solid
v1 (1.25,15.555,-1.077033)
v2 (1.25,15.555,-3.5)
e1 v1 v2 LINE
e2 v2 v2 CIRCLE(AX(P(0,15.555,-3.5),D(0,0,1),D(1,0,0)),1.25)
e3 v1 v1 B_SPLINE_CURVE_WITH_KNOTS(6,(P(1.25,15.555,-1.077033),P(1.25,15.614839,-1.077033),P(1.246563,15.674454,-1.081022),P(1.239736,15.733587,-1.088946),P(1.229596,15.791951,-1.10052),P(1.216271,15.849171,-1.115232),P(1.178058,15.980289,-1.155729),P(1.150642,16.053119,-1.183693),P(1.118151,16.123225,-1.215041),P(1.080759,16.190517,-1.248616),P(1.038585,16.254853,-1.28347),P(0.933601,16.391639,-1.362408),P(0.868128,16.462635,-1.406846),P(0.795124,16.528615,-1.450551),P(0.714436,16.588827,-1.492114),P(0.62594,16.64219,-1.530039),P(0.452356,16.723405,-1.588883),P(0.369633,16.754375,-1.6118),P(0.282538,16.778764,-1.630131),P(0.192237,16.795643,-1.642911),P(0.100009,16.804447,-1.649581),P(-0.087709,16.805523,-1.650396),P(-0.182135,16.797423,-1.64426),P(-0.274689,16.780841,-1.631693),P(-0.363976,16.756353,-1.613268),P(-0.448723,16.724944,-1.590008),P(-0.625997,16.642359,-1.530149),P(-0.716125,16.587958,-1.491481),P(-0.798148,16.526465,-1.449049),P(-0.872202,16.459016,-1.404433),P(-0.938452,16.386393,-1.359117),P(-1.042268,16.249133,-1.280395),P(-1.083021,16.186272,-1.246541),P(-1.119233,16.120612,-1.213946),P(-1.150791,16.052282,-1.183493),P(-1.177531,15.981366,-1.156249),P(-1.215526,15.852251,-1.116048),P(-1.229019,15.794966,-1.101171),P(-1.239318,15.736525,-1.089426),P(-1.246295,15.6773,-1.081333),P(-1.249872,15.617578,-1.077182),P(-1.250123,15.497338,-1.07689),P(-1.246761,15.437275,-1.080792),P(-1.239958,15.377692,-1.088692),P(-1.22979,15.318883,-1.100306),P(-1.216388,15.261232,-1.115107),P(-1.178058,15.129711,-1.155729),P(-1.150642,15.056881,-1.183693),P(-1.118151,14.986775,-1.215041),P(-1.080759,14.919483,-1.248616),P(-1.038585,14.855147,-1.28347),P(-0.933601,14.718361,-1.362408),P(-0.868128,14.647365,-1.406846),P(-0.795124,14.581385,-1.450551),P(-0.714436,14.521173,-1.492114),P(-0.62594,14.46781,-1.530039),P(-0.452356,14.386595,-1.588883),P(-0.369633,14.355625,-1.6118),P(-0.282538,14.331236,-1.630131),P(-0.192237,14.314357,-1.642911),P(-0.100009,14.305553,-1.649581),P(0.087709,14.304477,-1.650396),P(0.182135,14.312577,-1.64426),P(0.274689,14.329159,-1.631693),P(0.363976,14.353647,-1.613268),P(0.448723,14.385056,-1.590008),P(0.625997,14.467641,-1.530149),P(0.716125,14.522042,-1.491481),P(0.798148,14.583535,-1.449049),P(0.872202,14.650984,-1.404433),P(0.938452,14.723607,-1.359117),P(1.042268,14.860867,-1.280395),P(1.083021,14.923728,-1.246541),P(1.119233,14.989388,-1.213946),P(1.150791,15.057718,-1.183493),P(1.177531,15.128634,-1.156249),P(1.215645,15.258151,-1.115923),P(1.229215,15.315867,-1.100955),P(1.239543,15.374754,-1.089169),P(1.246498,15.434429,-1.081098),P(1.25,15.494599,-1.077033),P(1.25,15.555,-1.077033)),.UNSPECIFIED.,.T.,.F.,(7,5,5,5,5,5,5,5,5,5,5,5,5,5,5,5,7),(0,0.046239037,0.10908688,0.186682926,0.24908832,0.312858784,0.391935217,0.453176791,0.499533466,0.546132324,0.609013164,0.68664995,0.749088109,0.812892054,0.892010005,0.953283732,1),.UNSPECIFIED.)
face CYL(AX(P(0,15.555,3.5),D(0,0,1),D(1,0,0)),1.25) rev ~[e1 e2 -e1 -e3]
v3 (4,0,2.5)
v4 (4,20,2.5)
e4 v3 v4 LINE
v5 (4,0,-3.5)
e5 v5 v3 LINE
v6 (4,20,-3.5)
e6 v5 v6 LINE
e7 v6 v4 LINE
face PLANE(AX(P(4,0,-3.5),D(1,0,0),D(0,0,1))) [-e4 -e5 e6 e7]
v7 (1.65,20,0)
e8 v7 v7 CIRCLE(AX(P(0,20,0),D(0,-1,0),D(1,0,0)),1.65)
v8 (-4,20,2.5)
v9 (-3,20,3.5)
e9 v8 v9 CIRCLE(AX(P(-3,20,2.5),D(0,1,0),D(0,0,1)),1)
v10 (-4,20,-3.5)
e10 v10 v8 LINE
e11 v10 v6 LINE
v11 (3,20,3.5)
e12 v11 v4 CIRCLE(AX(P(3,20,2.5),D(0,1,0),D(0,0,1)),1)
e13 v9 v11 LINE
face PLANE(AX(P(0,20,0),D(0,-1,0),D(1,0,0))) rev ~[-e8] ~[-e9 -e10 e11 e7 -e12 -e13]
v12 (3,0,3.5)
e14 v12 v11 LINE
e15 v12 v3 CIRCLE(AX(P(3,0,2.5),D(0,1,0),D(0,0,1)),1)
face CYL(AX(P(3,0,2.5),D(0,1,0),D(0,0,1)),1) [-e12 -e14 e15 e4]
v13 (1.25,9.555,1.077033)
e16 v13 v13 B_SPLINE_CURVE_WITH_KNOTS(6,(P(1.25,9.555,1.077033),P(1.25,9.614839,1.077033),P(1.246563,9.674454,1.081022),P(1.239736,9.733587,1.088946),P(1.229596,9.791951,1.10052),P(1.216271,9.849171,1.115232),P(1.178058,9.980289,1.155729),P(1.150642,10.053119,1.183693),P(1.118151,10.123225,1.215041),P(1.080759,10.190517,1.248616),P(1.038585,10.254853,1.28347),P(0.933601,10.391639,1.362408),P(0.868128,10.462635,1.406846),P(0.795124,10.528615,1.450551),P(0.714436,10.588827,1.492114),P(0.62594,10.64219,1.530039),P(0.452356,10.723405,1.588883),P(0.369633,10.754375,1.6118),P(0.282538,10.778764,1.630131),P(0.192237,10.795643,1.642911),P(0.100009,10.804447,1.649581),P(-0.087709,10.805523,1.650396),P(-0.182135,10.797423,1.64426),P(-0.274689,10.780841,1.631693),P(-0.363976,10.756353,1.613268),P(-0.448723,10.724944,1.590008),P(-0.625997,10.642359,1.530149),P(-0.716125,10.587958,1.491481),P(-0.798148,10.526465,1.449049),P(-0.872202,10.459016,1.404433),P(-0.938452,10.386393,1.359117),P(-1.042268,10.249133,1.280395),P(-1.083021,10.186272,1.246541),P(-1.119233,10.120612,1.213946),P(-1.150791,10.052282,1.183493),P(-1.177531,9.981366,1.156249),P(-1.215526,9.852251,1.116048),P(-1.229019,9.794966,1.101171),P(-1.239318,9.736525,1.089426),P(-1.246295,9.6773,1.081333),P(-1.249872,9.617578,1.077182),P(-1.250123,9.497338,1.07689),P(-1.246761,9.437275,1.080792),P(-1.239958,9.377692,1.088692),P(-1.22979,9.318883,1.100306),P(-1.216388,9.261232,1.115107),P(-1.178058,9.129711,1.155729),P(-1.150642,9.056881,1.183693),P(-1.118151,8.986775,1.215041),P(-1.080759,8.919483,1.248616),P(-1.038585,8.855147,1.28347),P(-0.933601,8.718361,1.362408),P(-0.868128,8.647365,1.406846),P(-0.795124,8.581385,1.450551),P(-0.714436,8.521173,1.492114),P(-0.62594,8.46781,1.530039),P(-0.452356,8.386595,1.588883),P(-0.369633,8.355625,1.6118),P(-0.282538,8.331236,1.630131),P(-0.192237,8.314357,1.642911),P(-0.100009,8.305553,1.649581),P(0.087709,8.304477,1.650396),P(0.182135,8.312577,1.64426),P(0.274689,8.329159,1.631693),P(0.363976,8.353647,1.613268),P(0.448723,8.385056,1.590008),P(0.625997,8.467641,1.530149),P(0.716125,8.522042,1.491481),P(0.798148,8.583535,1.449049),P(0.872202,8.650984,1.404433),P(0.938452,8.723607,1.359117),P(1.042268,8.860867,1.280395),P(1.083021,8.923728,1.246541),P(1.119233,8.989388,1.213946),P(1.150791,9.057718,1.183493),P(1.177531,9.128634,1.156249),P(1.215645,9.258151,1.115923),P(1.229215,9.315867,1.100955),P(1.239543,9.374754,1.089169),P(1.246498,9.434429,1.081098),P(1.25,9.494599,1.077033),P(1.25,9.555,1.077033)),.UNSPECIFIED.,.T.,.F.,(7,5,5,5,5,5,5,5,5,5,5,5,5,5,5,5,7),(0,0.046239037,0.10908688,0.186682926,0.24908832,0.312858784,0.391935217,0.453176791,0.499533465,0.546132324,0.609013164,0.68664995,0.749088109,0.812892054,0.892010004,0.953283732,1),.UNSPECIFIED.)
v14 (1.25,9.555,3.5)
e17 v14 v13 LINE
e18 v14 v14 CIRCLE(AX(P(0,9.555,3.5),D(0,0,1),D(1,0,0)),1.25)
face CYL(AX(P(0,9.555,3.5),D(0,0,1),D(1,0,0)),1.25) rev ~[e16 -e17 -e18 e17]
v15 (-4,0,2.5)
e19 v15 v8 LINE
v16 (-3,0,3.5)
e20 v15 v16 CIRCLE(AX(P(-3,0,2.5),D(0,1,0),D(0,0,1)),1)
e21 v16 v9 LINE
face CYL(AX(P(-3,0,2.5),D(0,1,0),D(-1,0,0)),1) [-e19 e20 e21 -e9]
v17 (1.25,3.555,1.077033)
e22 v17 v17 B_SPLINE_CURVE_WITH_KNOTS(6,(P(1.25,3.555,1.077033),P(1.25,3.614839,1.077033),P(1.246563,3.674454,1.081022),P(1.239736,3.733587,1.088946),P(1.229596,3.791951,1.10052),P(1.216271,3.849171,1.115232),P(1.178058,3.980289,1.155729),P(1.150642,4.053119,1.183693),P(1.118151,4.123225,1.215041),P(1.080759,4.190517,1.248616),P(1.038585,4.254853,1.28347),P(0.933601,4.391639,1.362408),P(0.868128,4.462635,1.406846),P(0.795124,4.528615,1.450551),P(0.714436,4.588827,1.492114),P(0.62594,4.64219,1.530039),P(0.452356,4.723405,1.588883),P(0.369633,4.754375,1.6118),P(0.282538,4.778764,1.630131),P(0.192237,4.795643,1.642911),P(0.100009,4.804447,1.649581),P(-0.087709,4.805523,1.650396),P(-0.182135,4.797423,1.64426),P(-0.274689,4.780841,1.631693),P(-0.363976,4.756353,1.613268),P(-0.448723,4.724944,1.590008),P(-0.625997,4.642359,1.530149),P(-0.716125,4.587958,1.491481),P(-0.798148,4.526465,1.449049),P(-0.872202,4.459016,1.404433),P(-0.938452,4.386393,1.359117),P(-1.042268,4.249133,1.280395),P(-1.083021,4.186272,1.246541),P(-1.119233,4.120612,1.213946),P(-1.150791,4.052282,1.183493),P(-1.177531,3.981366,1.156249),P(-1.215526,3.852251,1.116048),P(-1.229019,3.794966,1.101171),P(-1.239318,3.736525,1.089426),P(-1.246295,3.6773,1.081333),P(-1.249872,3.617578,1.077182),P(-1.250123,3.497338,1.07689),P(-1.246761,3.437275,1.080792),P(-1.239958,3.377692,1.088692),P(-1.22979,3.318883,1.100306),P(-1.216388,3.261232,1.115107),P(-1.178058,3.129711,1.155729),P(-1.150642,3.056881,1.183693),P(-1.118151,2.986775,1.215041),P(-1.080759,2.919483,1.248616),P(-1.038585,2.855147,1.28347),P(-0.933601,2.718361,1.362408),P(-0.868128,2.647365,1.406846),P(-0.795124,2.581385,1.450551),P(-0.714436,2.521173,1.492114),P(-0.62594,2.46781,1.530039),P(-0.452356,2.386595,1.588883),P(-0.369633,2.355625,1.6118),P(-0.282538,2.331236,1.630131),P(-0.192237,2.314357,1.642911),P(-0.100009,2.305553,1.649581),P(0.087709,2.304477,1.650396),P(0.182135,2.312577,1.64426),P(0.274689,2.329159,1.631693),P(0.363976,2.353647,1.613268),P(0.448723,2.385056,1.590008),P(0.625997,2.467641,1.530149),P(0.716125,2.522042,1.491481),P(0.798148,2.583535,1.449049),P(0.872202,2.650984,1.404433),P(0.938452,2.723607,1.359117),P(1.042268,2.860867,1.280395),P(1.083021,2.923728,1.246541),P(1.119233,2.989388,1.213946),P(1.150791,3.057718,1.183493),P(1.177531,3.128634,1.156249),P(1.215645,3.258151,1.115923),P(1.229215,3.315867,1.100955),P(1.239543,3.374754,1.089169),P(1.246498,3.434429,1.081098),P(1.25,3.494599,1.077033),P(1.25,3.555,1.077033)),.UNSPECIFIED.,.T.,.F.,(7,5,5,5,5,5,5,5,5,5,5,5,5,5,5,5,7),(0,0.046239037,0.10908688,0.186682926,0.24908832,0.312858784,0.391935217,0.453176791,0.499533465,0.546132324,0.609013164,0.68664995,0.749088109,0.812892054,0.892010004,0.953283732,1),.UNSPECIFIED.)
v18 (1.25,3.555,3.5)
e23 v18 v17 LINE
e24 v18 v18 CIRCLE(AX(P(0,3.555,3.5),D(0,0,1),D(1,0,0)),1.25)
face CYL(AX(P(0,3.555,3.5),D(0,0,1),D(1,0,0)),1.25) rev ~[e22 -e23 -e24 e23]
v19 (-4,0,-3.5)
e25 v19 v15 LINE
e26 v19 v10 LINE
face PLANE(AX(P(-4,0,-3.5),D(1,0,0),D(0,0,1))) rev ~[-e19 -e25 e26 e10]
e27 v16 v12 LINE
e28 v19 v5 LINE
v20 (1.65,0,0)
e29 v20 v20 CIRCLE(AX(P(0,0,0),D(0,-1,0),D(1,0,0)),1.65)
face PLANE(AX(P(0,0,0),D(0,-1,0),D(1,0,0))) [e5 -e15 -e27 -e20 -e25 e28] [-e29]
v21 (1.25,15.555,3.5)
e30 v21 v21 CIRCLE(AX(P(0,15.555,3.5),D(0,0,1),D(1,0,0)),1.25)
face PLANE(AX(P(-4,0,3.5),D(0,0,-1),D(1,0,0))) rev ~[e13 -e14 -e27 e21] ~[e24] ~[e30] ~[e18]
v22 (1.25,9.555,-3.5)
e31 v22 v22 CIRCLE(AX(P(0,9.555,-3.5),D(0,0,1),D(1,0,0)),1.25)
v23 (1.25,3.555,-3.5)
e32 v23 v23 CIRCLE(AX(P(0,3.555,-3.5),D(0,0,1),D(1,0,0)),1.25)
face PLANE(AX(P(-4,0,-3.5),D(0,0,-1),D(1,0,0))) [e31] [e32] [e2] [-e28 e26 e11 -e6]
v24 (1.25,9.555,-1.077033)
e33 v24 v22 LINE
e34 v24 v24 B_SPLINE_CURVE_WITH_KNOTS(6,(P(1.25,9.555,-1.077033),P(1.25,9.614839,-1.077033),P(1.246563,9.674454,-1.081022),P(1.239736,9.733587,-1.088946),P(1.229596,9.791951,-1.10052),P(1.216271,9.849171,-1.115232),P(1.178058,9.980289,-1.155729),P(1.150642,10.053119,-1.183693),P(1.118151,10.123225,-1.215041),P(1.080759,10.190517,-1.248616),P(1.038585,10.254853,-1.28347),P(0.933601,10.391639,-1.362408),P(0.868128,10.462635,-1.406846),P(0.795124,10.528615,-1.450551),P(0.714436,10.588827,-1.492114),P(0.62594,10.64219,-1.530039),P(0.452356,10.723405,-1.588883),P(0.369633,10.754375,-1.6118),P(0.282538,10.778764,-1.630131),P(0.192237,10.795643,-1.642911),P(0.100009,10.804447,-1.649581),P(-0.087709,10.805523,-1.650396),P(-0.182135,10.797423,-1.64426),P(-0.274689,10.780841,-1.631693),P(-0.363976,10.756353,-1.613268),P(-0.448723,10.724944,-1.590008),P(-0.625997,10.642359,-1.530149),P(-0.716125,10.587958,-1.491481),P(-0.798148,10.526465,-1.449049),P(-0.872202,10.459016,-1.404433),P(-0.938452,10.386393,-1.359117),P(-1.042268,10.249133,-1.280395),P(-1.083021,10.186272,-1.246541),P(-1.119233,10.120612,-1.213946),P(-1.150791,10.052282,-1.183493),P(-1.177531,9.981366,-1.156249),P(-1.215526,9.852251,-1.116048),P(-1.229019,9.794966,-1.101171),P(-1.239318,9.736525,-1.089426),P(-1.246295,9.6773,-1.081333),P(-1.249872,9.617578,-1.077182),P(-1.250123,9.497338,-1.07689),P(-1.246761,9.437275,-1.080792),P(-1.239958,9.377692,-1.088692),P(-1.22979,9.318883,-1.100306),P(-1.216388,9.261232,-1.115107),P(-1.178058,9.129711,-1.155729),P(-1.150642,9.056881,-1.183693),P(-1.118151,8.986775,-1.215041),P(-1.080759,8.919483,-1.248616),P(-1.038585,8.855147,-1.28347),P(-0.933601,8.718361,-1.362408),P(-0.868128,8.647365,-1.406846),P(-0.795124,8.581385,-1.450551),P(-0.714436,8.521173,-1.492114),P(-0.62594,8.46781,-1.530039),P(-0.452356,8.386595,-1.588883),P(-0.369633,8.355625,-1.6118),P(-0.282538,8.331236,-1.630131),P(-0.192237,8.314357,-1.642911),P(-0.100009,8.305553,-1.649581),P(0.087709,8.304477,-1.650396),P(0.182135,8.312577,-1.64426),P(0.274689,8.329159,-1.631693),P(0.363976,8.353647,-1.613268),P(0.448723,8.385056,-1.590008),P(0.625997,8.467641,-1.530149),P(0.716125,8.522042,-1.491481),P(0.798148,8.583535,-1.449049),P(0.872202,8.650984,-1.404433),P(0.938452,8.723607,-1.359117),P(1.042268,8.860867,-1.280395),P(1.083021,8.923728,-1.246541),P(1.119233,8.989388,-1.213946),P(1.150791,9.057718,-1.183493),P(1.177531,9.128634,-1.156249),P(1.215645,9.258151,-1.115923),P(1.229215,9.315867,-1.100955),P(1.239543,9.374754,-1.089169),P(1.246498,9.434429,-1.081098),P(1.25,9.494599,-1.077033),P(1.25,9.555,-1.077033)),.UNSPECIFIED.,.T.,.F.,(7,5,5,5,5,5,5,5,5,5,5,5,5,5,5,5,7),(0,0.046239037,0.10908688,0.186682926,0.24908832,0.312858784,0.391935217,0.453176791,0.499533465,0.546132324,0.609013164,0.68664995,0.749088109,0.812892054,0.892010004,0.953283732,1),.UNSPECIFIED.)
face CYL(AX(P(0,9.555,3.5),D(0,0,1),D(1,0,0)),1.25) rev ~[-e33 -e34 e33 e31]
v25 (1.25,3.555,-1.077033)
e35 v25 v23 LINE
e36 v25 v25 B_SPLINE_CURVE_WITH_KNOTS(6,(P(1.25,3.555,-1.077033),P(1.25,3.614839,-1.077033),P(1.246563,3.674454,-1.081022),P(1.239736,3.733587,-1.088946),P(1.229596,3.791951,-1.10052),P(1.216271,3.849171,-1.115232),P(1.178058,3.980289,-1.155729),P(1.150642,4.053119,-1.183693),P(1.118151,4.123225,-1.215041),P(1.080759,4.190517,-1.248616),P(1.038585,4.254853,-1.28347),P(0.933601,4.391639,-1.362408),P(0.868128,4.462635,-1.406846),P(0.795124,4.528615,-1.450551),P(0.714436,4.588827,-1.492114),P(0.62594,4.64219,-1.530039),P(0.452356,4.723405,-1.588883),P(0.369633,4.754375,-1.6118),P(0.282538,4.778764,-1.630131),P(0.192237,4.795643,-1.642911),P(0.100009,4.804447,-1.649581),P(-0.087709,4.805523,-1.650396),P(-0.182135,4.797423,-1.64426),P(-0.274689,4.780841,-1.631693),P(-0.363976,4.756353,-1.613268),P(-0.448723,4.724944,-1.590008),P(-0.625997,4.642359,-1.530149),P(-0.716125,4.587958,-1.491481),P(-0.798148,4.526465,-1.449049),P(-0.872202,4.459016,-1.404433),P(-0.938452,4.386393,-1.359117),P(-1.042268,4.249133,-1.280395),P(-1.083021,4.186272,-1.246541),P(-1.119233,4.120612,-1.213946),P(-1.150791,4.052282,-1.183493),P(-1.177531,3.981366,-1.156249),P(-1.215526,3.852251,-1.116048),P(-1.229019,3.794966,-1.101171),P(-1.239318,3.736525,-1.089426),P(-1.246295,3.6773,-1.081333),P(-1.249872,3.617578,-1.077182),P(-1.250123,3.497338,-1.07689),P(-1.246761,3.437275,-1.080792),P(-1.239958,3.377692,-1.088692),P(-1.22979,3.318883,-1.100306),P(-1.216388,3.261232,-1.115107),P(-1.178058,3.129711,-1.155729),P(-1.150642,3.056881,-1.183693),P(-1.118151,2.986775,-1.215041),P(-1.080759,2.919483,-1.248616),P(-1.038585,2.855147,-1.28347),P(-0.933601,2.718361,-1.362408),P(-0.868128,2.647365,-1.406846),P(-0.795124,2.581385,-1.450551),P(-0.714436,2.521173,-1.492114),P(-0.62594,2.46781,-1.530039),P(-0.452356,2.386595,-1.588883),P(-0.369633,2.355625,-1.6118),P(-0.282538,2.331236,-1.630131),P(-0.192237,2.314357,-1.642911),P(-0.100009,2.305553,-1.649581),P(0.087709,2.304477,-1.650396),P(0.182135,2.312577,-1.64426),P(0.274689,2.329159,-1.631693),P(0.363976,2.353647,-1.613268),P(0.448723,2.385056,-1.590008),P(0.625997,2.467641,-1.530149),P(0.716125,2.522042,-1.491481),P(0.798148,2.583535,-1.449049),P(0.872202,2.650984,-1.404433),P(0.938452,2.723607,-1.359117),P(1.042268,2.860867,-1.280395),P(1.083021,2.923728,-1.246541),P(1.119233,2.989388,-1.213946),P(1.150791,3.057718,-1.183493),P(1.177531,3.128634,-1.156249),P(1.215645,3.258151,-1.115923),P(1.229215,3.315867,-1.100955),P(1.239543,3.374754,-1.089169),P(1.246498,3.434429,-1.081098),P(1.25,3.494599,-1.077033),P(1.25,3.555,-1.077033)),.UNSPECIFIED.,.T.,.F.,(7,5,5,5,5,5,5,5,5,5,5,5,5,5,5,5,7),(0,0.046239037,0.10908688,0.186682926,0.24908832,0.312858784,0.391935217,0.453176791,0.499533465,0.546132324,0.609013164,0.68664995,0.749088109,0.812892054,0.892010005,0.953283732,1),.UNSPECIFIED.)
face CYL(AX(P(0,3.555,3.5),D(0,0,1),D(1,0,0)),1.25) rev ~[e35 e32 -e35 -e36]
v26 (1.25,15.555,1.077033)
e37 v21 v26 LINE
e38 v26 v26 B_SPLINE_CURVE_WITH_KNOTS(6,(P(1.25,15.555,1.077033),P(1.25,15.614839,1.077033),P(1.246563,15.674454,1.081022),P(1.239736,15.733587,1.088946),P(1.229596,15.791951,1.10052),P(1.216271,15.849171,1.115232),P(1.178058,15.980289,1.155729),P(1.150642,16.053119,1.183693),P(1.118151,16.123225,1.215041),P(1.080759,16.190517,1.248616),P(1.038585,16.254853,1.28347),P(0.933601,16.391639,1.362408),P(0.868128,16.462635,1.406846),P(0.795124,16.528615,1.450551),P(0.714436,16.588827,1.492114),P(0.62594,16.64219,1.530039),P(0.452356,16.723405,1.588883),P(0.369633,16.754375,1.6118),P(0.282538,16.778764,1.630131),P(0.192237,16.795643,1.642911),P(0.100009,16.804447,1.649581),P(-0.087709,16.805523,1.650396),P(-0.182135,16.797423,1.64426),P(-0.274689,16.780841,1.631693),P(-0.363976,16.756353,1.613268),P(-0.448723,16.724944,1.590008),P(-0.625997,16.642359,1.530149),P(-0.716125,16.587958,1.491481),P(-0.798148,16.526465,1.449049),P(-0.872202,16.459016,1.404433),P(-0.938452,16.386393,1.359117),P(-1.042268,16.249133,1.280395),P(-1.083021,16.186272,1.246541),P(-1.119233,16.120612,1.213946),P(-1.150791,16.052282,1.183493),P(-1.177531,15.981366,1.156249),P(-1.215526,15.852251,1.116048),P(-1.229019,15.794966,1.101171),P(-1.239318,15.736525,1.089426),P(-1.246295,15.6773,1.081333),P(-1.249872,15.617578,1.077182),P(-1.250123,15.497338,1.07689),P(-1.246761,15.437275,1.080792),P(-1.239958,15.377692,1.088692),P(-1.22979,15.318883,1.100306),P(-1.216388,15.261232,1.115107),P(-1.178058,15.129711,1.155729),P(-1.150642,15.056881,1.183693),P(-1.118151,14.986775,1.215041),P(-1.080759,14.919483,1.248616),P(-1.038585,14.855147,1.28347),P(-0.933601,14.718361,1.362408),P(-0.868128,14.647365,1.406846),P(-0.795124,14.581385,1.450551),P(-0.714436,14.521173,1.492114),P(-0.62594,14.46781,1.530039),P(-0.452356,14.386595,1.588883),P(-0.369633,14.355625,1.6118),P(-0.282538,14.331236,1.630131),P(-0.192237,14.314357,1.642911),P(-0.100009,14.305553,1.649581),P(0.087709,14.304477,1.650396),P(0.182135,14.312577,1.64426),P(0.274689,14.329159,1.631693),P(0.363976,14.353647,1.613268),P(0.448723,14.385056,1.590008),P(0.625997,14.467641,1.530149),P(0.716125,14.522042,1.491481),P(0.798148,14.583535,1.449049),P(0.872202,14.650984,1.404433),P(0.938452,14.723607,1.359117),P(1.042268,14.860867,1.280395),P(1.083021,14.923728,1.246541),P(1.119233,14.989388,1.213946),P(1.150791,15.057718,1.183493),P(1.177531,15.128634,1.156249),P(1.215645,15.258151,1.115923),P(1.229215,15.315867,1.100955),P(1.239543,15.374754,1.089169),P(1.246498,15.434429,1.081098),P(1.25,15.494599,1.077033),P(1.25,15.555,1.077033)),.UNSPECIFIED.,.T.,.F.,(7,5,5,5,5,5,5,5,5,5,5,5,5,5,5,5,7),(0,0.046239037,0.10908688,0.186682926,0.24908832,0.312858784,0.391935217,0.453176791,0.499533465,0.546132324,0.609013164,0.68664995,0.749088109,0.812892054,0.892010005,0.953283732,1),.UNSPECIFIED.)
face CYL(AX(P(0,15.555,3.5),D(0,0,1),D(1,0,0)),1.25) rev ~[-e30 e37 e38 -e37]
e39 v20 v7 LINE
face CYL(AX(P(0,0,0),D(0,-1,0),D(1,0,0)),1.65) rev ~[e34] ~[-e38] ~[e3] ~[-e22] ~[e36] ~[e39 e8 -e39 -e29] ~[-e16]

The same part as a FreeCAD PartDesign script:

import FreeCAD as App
import Part
import Sketcher

V = App.Vector


def edges_at(feature, points):
    """Names of the edges that pass closest to the given points."""
    edges = feature.Shape.Edges
    near = lambda p: min(range(len(edges)), key=lambda i: edges[i].distToShape(Part.Vertex(*p))[0])
    return sorted({f"Edge{near(p) + 1}" for p in points})


def add_polygon(sketch, points):
    """Adds a closed chain of lines whose ends are joined by coincident constraints."""
    first, n = sketch.GeometryCount, len(points)
    for a, b in zip(points, points[1:] + points[:1]):
        sketch.addGeometry(Part.LineSegment(App.Vector(*a, 0), App.Vector(*b, 0)), False)
    for i in range(n):
        sketch.addConstraint(Sketcher.Constraint("Coincident", first + i, 2, first + (i + 1) % n, 1))

doc = App.newDocument("Part")
body = doc.addObject("PartDesign::Body", "Body")

sketch1 = doc.addObject("Sketcher::SketchObject", "Sketch")
body.addObject(sketch1)
sketch1.AttachmentSupport = (doc.XZ_Plane, [""])
sketch1.MapMode = "FlatFace"
add_polygon(sketch1, [(-4, 3.5), (-4, -3.5), (4, -3.5), (4, 3.5)])
sketch1.addGeometry(Part.Circle(V(0, 0, 0), V(0, 0, 1), 1.65), False)
sketch1.addConstraint([
    Sketcher.Constraint("Vertical", 0),
    Sketcher.Constraint("Horizontal", 1),
    Sketcher.Constraint("Vertical", 2),
    Sketcher.Constraint("Horizontal", 3),
    Sketcher.Constraint("Coincident", 4, 3, -1, 1),
    Sketcher.Constraint("Symmetric", 0, 2, 2, 2, -1, 1),
    Sketcher.Constraint("Diameter", 4, 3.3),
    Sketcher.Constraint("DistanceX", 1, 1, 1, 2, 8.0),
    Sketcher.Constraint("DistanceY", 0, 2, 0, 1, 7.0),
])
pad1 = doc.addObject("PartDesign::Pad", "Pad")
body.addObject(pad1)
pad1.Profile = sketch1
pad1.Length = 20
pad1.Reversed = True

sketch2 = doc.addObject("Sketcher::SketchObject", "Sketch001")
body.addObject(sketch2)
sketch2.AttachmentSupport = (doc.XY_Plane, [""])
sketch2.MapMode = "FlatFace"
sketch2.AttachmentOffset = App.Placement(V(0, 0, 3.5), App.Rotation())
sketch2.addGeometry([
    Part.Circle(V(0, 15.555, 0), V(0, 0, 1), 1.25),
    Part.Circle(V(0, 9.555, 0), V(0, 0, 1), 1.25),
    Part.Circle(V(0, 3.555, 0), V(0, 0, 1), 1.25),
], False)
sketch2.addConstraint([
    Sketcher.Constraint("Equal", 0, 1),
    Sketcher.Constraint("Equal", 1, 2),
    Sketcher.Constraint("PointOnObject", 0, 3, -2),
    Sketcher.Constraint("PointOnObject", 1, 3, -2),
    Sketcher.Constraint("PointOnObject", 2, 3, -2),
    Sketcher.Constraint("Diameter", 0, 2.5),
    Sketcher.Constraint("DistanceY", 1, 3, 0, 3, 6.0),
    Sketcher.Constraint("DistanceY", 2, 3, 1, 3, 6.0),
    Sketcher.Constraint("DistanceY", -1, 1, 0, 3, 15.555),
])
pocket1 = doc.addObject("PartDesign::Pocket", "Pocket")
body.addObject(pocket1)
pocket1.Profile = sketch2
pocket1.Type = "ThroughAll"
doc.recompute()

fillet = doc.addObject("PartDesign::Fillet", "Fillet")
body.addObject(fillet)
fillet.Base = (pocket1, edges_at(pocket1, [(4, 10, 3.5), (-4, 10, 3.5)]))
fillet.Radius = 1

doc.recompute()
